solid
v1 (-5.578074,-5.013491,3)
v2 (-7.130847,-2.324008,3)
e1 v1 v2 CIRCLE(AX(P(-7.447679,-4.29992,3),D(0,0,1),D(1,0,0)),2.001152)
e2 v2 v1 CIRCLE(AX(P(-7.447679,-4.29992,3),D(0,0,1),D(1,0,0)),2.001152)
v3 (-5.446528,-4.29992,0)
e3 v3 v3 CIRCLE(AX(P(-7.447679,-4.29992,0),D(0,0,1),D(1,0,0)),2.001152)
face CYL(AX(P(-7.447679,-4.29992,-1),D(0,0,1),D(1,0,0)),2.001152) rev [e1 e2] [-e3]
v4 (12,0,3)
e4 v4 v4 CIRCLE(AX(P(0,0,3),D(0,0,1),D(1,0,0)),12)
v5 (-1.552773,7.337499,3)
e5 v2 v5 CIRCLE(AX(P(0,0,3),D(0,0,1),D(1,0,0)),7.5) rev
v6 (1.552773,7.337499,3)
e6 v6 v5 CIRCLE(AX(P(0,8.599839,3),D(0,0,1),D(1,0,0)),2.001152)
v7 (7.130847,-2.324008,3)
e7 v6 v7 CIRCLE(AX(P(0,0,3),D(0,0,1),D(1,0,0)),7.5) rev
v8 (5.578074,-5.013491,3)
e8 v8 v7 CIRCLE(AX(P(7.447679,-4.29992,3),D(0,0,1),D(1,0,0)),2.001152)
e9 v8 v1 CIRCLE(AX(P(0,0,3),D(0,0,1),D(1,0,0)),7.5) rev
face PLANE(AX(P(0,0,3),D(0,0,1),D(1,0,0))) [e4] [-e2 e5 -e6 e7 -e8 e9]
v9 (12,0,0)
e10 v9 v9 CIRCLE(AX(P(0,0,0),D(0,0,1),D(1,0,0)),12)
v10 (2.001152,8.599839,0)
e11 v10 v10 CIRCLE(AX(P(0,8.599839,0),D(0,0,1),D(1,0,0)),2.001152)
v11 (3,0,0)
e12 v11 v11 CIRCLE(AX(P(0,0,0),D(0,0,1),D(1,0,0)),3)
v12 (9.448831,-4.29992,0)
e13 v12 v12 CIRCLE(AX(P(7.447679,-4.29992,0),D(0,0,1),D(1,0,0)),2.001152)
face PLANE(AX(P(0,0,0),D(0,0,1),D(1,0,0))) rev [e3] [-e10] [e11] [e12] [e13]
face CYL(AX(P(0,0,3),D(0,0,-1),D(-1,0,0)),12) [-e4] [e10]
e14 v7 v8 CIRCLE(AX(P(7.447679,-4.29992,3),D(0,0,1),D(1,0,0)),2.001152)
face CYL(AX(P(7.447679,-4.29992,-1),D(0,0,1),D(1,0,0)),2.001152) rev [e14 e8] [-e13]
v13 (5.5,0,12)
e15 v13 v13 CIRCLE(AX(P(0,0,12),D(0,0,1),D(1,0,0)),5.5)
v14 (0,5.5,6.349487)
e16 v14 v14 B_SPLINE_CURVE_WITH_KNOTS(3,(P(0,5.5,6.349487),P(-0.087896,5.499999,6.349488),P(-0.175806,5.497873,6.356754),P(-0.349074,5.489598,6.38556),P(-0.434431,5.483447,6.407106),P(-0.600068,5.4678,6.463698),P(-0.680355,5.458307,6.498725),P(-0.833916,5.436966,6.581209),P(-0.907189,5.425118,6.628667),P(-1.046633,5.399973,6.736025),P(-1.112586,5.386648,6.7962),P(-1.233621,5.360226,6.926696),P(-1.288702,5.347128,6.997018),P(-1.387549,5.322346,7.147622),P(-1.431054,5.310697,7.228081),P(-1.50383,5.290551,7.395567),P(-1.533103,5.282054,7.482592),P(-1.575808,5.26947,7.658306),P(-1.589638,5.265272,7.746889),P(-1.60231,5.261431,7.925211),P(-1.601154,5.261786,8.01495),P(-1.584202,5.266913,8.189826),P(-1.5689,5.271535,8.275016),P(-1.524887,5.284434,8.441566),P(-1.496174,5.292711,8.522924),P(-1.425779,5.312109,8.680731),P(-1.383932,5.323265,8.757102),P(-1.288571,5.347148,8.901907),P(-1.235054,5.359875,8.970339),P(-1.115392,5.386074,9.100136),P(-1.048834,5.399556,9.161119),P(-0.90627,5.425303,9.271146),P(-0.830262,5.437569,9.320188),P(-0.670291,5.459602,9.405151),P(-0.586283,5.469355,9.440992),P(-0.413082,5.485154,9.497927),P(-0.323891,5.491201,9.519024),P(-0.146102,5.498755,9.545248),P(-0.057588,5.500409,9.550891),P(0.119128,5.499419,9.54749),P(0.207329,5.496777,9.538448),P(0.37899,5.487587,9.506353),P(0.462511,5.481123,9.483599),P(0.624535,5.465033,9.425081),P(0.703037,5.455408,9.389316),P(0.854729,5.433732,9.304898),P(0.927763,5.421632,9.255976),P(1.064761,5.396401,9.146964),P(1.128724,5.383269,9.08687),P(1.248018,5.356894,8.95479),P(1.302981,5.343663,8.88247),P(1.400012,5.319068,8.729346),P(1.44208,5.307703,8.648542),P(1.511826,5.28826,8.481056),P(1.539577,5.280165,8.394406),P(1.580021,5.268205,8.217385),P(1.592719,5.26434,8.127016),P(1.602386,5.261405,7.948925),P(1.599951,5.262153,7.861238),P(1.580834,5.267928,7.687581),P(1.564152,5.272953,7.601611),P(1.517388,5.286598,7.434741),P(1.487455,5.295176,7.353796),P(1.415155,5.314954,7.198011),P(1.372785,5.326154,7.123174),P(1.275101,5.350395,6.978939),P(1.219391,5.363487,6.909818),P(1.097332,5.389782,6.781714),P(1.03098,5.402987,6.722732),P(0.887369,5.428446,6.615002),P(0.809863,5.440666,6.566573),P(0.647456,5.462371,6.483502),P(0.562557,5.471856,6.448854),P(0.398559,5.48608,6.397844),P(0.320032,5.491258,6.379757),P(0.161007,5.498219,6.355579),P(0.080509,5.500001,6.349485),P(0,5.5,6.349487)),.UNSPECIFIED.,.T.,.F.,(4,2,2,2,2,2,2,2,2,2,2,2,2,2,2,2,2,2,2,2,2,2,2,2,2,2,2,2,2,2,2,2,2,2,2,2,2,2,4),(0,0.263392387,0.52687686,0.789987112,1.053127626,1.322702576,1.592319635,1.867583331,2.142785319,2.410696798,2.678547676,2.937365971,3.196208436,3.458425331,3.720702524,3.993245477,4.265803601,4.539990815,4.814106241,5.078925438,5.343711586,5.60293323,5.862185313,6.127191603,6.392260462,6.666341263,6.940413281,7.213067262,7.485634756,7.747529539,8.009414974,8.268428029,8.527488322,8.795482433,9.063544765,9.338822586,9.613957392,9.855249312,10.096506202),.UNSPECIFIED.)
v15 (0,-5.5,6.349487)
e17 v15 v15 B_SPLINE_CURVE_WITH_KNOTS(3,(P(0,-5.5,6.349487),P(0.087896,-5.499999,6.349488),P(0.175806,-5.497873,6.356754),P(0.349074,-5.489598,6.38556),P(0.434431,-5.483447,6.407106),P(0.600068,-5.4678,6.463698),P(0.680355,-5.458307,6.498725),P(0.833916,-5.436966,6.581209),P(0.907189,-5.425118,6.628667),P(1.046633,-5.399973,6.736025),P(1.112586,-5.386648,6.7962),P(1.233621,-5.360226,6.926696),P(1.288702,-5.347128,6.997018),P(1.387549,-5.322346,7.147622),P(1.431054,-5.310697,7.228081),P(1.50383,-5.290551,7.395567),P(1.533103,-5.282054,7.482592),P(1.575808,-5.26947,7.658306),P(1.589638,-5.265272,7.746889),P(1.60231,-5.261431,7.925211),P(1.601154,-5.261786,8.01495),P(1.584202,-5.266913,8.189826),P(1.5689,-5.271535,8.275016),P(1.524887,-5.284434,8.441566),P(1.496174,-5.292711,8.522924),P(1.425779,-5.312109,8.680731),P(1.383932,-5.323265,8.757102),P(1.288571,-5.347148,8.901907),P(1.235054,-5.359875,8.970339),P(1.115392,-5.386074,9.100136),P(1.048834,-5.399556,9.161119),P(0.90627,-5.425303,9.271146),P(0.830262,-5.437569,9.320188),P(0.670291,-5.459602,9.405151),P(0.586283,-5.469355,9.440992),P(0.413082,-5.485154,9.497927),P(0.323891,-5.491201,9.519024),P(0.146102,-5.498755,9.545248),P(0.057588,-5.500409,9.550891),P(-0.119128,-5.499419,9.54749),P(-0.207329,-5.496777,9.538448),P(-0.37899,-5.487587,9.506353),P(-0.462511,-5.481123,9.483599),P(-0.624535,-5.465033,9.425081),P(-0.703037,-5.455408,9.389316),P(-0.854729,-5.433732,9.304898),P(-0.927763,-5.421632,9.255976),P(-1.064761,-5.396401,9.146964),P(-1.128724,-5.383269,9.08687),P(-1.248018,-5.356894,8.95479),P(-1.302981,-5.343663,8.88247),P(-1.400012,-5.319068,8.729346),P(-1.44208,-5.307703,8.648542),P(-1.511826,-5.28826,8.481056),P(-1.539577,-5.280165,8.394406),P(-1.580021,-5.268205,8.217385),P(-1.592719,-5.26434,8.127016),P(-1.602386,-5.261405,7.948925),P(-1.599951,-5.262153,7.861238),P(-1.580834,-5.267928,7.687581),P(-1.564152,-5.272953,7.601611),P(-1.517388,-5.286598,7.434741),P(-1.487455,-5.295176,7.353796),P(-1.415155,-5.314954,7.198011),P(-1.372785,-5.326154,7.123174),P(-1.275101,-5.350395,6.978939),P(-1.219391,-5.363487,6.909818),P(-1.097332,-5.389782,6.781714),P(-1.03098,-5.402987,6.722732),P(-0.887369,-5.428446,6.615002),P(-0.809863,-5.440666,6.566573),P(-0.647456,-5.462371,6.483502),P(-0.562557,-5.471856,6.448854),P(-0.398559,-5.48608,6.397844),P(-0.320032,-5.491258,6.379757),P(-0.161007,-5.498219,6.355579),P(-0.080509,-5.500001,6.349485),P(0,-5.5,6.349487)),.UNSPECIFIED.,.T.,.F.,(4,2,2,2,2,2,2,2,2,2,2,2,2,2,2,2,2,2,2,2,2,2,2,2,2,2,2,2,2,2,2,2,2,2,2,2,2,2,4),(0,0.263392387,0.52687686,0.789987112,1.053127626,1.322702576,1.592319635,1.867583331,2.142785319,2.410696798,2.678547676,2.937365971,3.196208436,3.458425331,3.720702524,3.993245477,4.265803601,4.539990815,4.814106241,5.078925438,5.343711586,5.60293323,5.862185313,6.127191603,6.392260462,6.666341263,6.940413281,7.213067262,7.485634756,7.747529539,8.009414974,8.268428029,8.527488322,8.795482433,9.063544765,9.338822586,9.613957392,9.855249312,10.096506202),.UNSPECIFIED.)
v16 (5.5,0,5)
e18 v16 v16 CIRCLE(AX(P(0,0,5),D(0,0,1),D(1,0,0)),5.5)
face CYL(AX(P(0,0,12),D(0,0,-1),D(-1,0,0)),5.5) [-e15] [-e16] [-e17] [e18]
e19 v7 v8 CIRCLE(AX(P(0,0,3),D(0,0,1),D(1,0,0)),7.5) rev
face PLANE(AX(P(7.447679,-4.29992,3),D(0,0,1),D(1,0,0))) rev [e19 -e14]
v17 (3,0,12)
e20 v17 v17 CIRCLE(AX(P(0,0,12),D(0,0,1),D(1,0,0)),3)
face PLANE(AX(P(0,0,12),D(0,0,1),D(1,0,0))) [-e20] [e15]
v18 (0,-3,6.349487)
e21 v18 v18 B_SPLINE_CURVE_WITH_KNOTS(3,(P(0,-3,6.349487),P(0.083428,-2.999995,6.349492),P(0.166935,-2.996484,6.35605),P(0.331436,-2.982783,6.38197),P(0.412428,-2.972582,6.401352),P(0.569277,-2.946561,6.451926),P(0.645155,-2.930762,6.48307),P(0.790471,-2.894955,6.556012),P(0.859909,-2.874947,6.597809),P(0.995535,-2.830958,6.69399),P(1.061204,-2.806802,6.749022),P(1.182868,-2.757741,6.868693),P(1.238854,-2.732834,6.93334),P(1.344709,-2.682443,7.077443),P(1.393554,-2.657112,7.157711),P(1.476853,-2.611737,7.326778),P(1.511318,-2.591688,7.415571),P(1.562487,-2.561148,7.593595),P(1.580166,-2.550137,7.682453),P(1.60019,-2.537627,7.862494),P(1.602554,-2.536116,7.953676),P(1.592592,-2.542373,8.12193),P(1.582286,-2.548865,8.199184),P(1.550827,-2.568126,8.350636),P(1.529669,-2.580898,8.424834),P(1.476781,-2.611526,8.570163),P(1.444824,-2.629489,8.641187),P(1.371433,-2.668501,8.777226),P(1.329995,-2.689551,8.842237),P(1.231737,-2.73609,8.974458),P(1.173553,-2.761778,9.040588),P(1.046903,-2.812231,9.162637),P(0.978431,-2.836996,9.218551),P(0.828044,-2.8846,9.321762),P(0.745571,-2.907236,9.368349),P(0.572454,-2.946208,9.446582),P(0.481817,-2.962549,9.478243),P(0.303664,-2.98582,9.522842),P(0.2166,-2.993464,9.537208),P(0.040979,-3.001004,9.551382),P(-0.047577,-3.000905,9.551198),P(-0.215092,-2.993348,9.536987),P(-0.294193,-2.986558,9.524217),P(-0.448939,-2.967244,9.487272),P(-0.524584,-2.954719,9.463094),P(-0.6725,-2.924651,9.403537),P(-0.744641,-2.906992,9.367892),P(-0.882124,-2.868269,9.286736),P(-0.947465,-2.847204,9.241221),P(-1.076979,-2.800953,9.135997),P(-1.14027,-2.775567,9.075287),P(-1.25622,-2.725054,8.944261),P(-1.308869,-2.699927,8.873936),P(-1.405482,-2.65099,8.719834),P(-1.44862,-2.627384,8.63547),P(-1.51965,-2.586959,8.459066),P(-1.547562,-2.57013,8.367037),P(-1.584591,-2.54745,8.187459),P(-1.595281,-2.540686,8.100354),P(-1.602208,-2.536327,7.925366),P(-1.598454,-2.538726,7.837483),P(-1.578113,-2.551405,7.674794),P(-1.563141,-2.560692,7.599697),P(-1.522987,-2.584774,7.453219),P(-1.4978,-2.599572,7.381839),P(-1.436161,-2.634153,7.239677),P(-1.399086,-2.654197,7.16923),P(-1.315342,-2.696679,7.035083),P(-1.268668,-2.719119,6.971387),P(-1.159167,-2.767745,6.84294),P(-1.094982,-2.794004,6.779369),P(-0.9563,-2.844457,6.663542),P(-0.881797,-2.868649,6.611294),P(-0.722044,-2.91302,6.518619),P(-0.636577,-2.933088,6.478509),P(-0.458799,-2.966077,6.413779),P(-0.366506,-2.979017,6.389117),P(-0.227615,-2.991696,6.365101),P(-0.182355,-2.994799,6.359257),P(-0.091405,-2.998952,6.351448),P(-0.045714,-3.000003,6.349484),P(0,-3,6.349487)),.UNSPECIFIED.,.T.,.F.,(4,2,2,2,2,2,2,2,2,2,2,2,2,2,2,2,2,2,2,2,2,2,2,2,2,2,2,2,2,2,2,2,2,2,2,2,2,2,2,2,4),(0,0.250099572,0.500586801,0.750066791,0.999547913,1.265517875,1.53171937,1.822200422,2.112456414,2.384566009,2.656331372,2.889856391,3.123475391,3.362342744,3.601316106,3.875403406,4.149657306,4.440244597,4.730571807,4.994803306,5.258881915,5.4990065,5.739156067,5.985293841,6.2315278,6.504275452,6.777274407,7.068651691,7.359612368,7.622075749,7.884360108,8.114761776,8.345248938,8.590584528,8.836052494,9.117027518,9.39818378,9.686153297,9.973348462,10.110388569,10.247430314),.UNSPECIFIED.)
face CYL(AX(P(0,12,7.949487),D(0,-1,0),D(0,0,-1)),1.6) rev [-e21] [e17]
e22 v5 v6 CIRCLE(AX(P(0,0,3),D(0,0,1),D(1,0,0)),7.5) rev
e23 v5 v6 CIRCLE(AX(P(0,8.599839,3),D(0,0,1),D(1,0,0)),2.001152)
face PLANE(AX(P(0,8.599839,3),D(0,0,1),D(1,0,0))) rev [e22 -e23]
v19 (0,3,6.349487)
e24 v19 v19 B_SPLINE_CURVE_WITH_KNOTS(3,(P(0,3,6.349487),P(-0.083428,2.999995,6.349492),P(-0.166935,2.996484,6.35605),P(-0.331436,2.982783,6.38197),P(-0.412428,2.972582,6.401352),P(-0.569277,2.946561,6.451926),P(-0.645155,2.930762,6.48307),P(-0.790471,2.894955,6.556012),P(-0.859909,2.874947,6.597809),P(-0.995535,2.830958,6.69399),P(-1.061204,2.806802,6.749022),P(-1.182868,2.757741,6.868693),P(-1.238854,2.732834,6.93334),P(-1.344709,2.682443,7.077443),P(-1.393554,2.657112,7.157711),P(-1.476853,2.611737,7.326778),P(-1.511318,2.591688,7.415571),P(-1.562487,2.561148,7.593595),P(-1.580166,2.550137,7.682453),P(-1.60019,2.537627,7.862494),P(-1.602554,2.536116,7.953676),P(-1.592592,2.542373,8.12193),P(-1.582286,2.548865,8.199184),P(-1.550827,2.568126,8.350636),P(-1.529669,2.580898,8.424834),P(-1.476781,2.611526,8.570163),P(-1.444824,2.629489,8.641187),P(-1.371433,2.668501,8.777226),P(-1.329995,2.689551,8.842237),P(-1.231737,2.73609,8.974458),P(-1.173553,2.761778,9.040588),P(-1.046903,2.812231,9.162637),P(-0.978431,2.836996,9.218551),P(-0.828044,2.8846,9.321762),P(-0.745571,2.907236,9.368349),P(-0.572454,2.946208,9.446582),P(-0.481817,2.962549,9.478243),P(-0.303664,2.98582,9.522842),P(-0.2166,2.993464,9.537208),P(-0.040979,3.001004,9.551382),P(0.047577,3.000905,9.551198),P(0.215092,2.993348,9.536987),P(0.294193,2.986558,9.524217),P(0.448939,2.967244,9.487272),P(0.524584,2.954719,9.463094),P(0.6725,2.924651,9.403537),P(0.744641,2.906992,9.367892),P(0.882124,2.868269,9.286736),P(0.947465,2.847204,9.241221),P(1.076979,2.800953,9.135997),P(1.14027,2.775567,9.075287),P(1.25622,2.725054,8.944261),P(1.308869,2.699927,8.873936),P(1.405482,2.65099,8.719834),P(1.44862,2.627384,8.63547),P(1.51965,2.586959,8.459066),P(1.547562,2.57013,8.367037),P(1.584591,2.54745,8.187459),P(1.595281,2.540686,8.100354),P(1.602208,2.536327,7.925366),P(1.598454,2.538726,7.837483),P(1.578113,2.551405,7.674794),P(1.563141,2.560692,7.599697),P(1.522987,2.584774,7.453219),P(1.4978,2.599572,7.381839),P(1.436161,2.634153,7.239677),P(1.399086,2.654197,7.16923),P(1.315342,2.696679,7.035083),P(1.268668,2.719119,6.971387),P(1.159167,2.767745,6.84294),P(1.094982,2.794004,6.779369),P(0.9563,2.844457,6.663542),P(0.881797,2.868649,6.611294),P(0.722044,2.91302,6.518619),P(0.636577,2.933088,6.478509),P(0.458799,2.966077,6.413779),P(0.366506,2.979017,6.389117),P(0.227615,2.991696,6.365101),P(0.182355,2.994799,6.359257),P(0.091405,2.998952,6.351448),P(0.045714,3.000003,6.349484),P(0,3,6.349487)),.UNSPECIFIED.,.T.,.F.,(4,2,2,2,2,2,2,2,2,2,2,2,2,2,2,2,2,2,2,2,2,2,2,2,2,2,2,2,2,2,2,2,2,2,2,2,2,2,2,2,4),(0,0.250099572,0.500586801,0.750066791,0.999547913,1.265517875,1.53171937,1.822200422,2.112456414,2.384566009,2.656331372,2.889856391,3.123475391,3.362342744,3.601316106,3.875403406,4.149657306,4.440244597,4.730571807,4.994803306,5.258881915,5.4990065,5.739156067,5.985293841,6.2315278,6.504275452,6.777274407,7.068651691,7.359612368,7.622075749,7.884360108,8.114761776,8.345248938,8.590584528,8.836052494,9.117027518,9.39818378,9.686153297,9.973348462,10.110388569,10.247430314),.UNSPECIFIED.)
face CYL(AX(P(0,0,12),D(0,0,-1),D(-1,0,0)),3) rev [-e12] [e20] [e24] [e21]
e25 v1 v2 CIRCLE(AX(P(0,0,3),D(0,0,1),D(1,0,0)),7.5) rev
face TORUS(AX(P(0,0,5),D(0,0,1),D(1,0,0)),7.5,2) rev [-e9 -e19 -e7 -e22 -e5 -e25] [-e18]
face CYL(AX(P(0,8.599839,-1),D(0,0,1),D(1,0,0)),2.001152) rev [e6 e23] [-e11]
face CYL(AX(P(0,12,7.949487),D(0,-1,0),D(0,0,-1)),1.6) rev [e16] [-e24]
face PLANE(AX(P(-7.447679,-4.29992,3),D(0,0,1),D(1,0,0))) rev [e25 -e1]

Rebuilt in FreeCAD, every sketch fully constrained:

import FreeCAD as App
import Part
import Sketcher
Q = App.Units.Quantity


def edges_at(feature, points):
    """Names of the edges that pass closest to the given points."""
    edges = feature.Shape.Edges
    near = lambda p: min(range(len(edges)), key=lambda i: edges[i].distToShape(Part.Vertex(*p))[0])
    return sorted({f"Edge{near(p) + 1}" for p in points})

doc = App.newDocument("Part")
body = doc.addObject("PartDesign::Body", "Body")

# Sketch on XY plane
sketch1 = doc.addObject("Sketcher::SketchObject", "Sketch")
body.addObject(sketch1)
sketch1.AttachmentSupport = (doc.XY_Plane, [""])
sketch1.MapMode = "FlatFace"
sketch1.addGeometry([
    Part.Circle(App.Vector(0, 0, 0), App.Vector(0, 0, 1), 12),
    Part.Circle(App.Vector(0, 0, 0), App.Vector(0, 0, 1), 6),
], False)
sketch1.addConstraint([
    Sketcher.Constraint("Coincident", 0, 3, -1, 1),
    Sketcher.Constraint("Coincident", 1, 3, -1, 1),
    Sketcher.Constraint("Diameter", 0, Q("24 mm")),
    Sketcher.Constraint("Diameter", 1, Q("11 mm")),
])
pad1 = doc.addObject("PartDesign::Pad", "Pad")
body.addObject(pad1)
pad1.Profile = sketch1
pad1.Length = 3

# Sketch on XY plane
sketch2 = doc.addObject("Sketcher::SketchObject", "Sketch001")
body.addObject(sketch2)
sketch2.AttachmentSupport = (doc.XY_Plane, [""])
sketch2.MapMode = "FlatFace"
sketch2.addGeometry([
    Part.Circle(App.Vector(0, 0, 0), App.Vector(0, 0, 1), 5.5),
    Part.Circle(App.Vector(0, 0, 0), App.Vector(0, 0, 1), 3),
], False)
sketch2.addConstraint([
    Sketcher.Constraint("Coincident", 0, 3, -1, 1),
    Sketcher.Constraint("Coincident", 1, 3, -1, 1),
    Sketcher.Constraint("Diameter", 0, Q("11 mm")),
    Sketcher.Constraint("Diameter", 1, Q("6 mm")),
])
pad2 = doc.addObject("PartDesign::Pad", "Pad001")
body.addObject(pad2)
pad2.Profile = sketch2
pad2.Length = 12
doc.recompute()

fillet = doc.addObject("PartDesign::Fillet", "Fillet")
body.addObject(fillet)
fillet.Base = (pad2, edges_at(pad2, [(-5.5, 0, 3)]))
fillet.Radius = 2

# Sketch on XZ plane
sketch3 = doc.addObject("Sketcher::SketchObject", "Sketch002")
body.addObject(sketch3)
sketch3.AttachmentSupport = (doc.XZ_Plane, [""])
sketch3.MapMode = "FlatFace"
sketch3.AttachmentOffset = App.Placement(App.Vector(0, 0, 5.5), App.Rotation())
sketch3.addGeometry(Part.Circle(App.Vector(0, 7.9, 0), App.Vector(0, 0, 1), 1.6), False)
sketch3.addConstraint([
    Sketcher.Constraint("PointOnObject", 0, 3, -2),
    Sketcher.Constraint("Diameter", 0, Q("3.2 mm")),
    Sketcher.Constraint("DistanceY", -1, 1, 0, 3, Q("7.949487 mm")),
])
pocket1 = doc.addObject("PartDesign::Pocket", "Pocket")
body.addObject(pocket1)
pocket1.Profile = sketch3
pocket1.Length = 11

# Sketch on XY plane
sketch4 = doc.addObject("Sketcher::SketchObject", "Sketch003")
body.addObject(sketch4)
sketch4.AttachmentSupport = (doc.XY_Plane, [""])
sketch4.MapMode = "FlatFace"
sketch4.AttachmentOffset = App.Placement(App.Vector(0, 0, 3), App.Rotation())
sketch4.addGeometry([
    Part.Circle(App.Vector(0, 8.6, 0), App.Vector(0, 0, 1), 2),
    Part.Circle(App.Vector(7.4, -4.3, 0), App.Vector(0, 0, 1), 2),
    Part.Circle(App.Vector(-7.4, -4.3, 0), App.Vector(0, 0, 1), 2),
], False)
sketch4.addConstraint([
    Sketcher.Constraint("Equal", 0, 1),
    Sketcher.Constraint("Equal", 1, 2),
    Sketcher.Constraint("Symmetric", 1, 3, 2, 3, -2),
    Sketcher.Constraint("PointOnObject", 0, 3, -2),
    Sketcher.Constraint("Diameter", 0, Q("4.002303 mm")),
    Sketcher.Constraint("DistanceY", -1, 1, 0, 3, Q("8.599839 mm")),
    Sketcher.Constraint("DistanceX", -1, 1, 1, 3, Q("7.447679 mm")),
    Sketcher.Constraint("DistanceY", 1, 3, -1, 1, Q("4.29992 mm")),
])
pocket2 = doc.addObject("PartDesign::Pocket", "Pocket001")
body.addObject(pocket2)
pocket2.Profile = sketch4
pocket2.Length = 4

doc.recompute()
